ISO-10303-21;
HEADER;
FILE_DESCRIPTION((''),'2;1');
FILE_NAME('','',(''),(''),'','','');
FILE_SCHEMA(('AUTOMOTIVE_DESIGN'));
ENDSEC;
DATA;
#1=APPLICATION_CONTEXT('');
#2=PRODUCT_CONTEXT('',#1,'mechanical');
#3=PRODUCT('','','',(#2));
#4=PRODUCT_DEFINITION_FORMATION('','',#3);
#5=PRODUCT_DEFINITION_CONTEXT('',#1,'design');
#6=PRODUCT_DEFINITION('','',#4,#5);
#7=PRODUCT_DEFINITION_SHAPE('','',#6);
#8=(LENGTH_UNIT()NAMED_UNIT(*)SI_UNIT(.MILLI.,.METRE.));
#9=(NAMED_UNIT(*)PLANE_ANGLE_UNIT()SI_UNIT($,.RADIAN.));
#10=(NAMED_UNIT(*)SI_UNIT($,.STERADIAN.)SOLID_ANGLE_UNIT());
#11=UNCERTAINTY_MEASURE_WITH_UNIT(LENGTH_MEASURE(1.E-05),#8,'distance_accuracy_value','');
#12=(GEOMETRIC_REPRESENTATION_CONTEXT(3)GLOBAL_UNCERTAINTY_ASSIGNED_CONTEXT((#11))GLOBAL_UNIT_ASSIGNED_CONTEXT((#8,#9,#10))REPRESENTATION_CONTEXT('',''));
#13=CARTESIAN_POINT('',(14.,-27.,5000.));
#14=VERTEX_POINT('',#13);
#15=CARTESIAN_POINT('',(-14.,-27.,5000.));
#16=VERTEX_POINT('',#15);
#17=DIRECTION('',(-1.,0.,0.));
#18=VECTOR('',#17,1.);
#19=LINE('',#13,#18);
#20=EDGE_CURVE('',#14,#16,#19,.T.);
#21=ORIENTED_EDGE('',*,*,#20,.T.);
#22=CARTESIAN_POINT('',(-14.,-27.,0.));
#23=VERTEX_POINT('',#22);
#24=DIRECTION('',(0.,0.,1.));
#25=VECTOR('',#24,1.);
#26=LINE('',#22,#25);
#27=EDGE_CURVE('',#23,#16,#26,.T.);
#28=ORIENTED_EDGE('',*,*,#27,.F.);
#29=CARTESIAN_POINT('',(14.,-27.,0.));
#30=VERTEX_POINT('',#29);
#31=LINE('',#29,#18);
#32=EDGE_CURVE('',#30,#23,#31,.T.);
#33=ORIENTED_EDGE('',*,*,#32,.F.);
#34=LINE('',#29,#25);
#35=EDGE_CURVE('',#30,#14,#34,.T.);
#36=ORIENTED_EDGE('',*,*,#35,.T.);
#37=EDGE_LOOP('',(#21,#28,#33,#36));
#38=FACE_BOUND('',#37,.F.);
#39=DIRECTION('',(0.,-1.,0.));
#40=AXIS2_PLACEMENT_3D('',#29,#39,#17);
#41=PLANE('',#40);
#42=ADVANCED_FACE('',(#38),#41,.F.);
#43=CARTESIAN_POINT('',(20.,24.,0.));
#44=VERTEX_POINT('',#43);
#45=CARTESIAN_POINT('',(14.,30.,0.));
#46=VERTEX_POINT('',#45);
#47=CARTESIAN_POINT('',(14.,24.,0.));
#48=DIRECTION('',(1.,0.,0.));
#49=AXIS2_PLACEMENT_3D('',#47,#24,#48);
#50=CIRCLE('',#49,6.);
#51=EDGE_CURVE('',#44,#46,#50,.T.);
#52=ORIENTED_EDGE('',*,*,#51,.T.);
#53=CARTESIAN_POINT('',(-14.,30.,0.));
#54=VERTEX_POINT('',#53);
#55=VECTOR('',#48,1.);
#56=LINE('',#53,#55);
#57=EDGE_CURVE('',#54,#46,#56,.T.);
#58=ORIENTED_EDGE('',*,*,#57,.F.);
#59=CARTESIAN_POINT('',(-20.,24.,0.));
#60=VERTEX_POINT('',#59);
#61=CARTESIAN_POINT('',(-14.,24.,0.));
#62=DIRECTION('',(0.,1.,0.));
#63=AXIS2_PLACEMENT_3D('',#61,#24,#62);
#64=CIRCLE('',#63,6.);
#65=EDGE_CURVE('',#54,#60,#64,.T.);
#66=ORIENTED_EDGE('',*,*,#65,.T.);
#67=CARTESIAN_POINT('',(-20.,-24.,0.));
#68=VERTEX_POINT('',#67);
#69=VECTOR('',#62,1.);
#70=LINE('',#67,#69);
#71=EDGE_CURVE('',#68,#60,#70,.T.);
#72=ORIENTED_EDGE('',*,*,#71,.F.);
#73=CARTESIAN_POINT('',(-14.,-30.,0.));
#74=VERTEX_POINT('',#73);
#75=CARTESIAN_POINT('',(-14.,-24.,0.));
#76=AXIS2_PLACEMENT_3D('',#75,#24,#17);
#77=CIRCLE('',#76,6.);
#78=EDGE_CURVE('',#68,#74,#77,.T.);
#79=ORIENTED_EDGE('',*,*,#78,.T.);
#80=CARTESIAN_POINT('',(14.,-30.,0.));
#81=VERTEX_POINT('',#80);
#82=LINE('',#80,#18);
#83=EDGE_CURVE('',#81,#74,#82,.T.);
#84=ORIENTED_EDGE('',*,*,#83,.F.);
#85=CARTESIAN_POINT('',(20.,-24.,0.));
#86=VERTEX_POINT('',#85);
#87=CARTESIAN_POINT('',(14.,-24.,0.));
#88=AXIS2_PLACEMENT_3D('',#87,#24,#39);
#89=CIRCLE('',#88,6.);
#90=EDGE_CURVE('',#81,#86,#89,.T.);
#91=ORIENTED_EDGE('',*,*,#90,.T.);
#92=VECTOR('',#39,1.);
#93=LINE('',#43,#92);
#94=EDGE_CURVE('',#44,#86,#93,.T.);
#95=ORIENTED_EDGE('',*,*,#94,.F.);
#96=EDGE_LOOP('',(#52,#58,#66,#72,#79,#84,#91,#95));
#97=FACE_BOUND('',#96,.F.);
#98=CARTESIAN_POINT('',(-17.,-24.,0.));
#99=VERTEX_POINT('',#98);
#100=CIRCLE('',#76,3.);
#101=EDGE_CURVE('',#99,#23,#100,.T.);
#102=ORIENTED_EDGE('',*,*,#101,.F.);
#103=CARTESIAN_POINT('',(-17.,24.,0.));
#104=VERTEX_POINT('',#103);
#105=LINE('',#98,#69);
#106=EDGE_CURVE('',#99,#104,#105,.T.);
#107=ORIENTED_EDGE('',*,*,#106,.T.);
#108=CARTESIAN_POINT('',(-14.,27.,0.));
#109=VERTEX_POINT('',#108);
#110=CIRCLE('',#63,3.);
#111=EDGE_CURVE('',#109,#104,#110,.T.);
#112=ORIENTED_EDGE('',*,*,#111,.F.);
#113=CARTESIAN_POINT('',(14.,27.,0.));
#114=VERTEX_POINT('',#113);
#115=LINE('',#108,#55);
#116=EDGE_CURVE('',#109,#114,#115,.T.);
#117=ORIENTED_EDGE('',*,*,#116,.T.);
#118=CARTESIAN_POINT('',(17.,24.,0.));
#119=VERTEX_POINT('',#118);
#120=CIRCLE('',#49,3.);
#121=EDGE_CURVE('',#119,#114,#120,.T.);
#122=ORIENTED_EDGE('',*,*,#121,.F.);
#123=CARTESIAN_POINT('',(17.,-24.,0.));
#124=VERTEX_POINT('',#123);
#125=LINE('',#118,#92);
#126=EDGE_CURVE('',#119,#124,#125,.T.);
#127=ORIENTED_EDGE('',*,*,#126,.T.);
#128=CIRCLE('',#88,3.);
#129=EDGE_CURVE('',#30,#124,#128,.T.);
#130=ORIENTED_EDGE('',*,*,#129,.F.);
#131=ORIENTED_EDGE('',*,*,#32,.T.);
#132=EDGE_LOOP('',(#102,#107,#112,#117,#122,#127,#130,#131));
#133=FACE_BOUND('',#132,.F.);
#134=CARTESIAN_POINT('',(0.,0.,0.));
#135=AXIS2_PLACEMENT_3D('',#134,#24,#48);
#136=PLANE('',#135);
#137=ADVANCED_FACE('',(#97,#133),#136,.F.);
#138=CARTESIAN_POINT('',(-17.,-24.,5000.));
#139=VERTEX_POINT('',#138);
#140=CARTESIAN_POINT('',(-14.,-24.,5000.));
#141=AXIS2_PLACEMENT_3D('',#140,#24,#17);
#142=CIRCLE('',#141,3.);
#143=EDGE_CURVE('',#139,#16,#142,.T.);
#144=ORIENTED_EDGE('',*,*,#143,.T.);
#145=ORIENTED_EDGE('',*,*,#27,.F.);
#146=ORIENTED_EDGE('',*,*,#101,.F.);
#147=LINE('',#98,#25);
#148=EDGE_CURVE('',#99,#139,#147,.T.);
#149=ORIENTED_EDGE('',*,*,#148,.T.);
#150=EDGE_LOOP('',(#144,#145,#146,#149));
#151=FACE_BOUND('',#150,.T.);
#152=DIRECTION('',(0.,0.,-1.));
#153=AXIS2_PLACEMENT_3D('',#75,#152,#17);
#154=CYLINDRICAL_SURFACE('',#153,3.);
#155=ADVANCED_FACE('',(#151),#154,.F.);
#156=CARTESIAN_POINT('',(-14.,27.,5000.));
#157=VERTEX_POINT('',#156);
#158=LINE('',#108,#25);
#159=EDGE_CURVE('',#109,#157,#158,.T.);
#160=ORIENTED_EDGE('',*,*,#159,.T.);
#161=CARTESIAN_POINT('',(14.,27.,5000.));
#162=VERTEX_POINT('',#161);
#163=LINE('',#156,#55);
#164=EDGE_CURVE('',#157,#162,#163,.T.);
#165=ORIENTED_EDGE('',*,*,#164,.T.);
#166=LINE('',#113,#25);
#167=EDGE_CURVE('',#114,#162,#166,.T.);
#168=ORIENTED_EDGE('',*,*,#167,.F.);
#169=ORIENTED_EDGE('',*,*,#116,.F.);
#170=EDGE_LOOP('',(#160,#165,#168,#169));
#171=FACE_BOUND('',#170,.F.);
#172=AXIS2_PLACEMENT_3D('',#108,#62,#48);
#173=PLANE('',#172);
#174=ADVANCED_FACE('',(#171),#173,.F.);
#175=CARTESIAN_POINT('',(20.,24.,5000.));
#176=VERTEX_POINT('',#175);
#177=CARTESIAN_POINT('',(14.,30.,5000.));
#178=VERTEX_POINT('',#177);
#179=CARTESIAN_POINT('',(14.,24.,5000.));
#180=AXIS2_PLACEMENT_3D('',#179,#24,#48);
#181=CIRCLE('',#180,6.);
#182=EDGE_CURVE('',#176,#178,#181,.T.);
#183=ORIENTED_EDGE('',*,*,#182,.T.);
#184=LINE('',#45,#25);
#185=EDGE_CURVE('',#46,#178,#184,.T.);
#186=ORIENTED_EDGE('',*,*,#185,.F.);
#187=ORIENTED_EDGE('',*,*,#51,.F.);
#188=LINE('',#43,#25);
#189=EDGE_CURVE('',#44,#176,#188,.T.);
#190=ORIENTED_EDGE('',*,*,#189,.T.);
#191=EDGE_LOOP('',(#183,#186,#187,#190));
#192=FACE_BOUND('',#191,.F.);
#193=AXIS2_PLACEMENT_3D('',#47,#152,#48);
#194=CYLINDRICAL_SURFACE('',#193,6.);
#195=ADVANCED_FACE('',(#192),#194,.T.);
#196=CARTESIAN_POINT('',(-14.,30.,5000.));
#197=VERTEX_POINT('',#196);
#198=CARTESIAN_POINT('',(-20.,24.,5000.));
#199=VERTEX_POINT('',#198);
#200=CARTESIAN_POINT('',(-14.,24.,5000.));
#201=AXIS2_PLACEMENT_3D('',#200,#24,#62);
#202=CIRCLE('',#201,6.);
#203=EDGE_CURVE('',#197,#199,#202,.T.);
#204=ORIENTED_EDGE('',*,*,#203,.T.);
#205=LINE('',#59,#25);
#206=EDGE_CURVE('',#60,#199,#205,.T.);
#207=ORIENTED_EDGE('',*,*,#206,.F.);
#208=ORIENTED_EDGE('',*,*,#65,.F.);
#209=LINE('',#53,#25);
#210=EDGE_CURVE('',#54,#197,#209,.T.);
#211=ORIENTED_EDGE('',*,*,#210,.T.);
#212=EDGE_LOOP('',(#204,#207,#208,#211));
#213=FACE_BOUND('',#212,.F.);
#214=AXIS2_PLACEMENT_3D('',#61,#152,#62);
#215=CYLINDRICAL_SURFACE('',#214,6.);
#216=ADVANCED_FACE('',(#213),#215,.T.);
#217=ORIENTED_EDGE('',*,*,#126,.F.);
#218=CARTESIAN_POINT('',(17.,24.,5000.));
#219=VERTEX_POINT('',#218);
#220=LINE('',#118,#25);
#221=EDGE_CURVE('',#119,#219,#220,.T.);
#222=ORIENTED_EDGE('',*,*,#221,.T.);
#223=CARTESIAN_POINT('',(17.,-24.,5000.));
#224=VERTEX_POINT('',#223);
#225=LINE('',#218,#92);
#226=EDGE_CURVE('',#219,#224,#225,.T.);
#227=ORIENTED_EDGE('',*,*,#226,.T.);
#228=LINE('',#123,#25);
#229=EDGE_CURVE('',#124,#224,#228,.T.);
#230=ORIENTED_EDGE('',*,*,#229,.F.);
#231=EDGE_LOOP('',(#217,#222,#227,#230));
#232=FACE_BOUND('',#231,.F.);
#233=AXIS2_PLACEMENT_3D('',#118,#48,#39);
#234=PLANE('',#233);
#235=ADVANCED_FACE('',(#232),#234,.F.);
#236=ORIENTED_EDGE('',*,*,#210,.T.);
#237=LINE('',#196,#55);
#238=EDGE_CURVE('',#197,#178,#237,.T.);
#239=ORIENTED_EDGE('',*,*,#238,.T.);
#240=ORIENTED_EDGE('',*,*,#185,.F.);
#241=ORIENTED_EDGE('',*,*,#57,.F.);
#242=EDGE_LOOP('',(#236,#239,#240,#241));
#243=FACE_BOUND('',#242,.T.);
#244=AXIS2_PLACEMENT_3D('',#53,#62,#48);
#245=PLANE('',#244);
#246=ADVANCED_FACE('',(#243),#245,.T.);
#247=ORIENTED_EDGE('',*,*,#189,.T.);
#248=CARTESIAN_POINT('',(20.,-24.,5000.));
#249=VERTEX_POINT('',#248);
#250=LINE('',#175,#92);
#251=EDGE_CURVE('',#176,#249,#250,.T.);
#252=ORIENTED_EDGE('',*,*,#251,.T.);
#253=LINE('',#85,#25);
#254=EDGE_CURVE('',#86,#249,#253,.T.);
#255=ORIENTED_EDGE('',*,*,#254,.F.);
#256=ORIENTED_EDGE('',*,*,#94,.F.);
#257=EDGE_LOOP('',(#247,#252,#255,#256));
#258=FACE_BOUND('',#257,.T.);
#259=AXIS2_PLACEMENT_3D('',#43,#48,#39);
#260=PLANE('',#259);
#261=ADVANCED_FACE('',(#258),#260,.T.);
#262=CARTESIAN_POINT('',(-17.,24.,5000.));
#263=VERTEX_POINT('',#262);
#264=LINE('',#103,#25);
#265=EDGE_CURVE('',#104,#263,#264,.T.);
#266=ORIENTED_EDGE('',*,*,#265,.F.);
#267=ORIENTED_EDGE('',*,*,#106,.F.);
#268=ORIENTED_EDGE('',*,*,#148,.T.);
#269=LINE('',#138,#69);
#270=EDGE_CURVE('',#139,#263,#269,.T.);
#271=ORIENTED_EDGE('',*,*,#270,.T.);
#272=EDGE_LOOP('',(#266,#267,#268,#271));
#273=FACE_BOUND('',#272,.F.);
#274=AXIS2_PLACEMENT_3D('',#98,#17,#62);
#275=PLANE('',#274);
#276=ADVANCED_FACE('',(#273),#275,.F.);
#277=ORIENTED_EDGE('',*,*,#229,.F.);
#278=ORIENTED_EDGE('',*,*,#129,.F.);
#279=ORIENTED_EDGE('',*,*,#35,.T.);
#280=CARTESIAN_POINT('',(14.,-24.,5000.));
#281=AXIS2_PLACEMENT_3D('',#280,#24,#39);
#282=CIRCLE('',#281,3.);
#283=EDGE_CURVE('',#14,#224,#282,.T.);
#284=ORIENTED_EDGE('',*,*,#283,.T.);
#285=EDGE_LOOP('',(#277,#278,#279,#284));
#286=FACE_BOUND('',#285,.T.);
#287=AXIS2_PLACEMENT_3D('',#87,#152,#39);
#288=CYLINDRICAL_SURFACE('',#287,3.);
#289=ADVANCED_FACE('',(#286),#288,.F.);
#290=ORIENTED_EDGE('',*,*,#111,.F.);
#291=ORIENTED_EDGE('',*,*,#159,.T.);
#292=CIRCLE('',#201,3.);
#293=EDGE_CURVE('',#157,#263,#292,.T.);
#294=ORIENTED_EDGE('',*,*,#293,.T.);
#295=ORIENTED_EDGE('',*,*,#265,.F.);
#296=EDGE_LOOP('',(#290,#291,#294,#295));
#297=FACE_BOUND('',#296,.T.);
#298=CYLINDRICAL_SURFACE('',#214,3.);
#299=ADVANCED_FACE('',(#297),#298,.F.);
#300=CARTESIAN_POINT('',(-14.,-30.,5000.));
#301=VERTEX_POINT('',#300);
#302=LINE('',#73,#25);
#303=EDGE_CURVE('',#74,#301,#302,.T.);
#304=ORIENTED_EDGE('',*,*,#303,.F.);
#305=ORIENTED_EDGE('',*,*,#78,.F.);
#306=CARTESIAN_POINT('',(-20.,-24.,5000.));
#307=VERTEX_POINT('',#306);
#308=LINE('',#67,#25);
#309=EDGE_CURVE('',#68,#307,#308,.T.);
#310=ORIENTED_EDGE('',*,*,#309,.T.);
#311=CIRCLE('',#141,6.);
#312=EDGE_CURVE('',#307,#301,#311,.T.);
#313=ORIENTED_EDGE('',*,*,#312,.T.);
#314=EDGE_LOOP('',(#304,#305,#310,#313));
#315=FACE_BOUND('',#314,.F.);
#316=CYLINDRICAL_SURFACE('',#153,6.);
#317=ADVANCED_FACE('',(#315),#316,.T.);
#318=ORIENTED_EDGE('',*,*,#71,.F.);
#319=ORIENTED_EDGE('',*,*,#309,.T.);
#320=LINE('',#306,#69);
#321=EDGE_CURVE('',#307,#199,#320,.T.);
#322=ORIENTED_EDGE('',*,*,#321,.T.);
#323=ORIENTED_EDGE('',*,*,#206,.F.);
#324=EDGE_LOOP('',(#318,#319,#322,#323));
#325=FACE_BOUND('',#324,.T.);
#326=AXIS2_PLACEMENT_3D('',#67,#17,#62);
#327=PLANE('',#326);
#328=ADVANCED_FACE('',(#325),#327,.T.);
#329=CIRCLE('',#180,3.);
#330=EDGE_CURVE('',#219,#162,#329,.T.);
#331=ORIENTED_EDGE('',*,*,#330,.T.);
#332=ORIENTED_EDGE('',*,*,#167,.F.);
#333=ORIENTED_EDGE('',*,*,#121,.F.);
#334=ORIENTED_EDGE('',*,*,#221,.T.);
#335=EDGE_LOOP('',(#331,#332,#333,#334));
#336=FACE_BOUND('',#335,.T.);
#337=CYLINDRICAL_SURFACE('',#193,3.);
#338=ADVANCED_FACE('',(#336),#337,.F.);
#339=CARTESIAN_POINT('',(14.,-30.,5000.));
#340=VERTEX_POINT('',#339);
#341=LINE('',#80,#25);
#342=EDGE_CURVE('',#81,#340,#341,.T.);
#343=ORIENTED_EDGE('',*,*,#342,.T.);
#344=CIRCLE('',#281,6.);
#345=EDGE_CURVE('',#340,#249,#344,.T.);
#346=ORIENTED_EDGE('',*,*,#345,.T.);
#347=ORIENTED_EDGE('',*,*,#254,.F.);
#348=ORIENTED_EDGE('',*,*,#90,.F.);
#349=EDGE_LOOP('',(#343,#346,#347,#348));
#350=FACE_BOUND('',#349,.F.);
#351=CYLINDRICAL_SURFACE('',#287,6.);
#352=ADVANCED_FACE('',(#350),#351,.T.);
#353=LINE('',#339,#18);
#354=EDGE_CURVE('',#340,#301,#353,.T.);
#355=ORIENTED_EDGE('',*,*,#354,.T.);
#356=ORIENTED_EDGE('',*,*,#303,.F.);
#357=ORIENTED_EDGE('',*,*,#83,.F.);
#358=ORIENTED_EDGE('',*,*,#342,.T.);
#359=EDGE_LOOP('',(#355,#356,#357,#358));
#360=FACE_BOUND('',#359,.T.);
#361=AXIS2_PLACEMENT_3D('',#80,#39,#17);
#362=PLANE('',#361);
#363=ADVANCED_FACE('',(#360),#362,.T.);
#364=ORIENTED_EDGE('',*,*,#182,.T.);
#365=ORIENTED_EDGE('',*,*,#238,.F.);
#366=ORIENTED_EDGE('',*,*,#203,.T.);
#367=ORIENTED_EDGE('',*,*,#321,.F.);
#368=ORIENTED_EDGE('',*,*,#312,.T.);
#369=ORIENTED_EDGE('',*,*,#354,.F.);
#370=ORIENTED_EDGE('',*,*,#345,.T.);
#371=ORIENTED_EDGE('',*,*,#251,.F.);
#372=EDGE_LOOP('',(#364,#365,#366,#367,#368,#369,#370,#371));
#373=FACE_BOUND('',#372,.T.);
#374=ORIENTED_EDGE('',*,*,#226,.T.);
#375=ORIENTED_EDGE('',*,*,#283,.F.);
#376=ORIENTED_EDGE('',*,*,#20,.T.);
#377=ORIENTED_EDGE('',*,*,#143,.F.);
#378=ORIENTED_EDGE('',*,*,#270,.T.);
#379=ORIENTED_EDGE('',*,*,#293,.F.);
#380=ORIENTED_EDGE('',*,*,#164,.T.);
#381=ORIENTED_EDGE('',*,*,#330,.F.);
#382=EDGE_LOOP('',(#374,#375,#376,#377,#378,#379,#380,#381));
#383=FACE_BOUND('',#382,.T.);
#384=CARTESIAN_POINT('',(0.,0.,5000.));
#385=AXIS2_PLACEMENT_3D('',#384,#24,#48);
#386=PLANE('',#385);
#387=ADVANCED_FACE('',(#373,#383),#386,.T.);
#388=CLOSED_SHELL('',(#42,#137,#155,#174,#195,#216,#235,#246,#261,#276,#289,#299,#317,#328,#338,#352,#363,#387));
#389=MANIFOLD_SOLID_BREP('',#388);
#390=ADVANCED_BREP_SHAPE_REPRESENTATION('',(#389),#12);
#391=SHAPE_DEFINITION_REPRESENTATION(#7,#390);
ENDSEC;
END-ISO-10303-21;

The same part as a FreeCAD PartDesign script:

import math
import FreeCAD as App
import Part
import Sketcher
from FreeCAD import Vector
Q = App.Units.Quantity

doc = App.newDocument("Part")
body = doc.addObject("PartDesign::Body", "Body")

# Sketch on XY plane
sketch1 = body.newObject("Sketcher::SketchObject", "Sketch")
sketch1.AttachmentSupport = (doc.getObject("XY_Plane"), [""])
sketch1.MapMode = "FlatFace"
sketch1.addGeometry([
    Part.LineSegment(Vector(-20, 24, 0), Vector(-20, -24, 0)),  # 0
    Part.ArcOfCircle(Part.Circle(Vector(-14, -24, 0), Vector(0, 0, 1), 6), math.radians(180), math.radians(270)),  # 1
    Part.LineSegment(Vector(-14, -30, 0), Vector(14, -30, 0)),  # 2
    Part.ArcOfCircle(Part.Circle(Vector(14, -24, 0), Vector(0, 0, 1), 6), math.radians(-90), math.radians(0)),  # 3
    Part.LineSegment(Vector(20, -24, 0), Vector(20, 24, 0)),  # 4
    Part.ArcOfCircle(Part.Circle(Vector(14, 24, 0), Vector(0, 0, 1), 6), math.radians(0), math.radians(90)),  # 5
    Part.LineSegment(Vector(14, 30, 0), Vector(-14, 30, 0)),  # 6
    Part.ArcOfCircle(Part.Circle(Vector(-14, 24, 0), Vector(0, 0, 1), 6), math.radians(90), math.radians(180)),  # 7
    Part.ArcOfCircle(Part.Circle(Vector(-14, 24, 0), Vector(0, 0, 1), 3), math.radians(90), math.radians(180)),  # 8
    Part.LineSegment(Vector(-14, 27, 0), Vector(14, 27, 0)),  # 9
    Part.ArcOfCircle(Part.Circle(Vector(14, 24, 0), Vector(0, 0, 1), 3), math.radians(0), math.radians(90)),  # 10
    Part.LineSegment(Vector(17, 24, 0), Vector(17, -24, 0)),  # 11
    Part.ArcOfCircle(Part.Circle(Vector(14, -24, 0), Vector(0, 0, 1), 3), math.radians(-90), math.radians(0)),  # 12
    Part.LineSegment(Vector(14, -27, 0), Vector(-14, -27, 0)),  # 13
    Part.ArcOfCircle(Part.Circle(Vector(-14, -24, 0), Vector(0, 0, 1), 3), math.radians(180), math.radians(270)),  # 14
    Part.LineSegment(Vector(-17, -24, 0), Vector(-17, 24, 0)),  # 15
], False)
sketch1.addConstraint([
    Sketcher.Constraint("Tangent", 0, 2, 1, 1),
    Sketcher.Constraint("Tangent", 1, 2, 2, 1),
    Sketcher.Constraint("Tangent", 2, 2, 3, 1),
    Sketcher.Constraint("Tangent", 3, 2, 4, 1),
    Sketcher.Constraint("Tangent", 4, 2, 5, 1),
    Sketcher.Constraint("Tangent", 5, 2, 6, 1),
    Sketcher.Constraint("Tangent", 6, 2, 7, 1),
    Sketcher.Constraint("Tangent", 7, 2, 0, 1),
    Sketcher.Constraint("Tangent", 8, 1, 9, 1),
    Sketcher.Constraint("Tangent", 9, 2, 10, 2),
    Sketcher.Constraint("Tangent", 10, 1, 11, 1),
    Sketcher.Constraint("Tangent", 11, 2, 12, 2),
    Sketcher.Constraint("Tangent", 12, 1, 13, 1),
    Sketcher.Constraint("Tangent", 13, 2, 14, 2),
    Sketcher.Constraint("Tangent", 14, 1, 15, 1),
    Sketcher.Constraint("Tangent", 15, 2, 8, 2),
    Sketcher.Constraint("Vertical", 0),
    Sketcher.Constraint("Horizontal", 2),
    Sketcher.Constraint("Vertical", 4),
    Sketcher.Constraint("Horizontal", 6),
    Sketcher.Constraint("Horizontal", 9),
    Sketcher.Constraint("Vertical", 11),
    Sketcher.Constraint("Horizontal", 13),
    Sketcher.Constraint("Vertical", 15),
    Sketcher.Constraint("Coincident", 8, 3, 7, 3),
    Sketcher.Constraint("Coincident", 10, 3, 5, 3),
    Sketcher.Constraint("Coincident", 12, 3, 3, 3),
    Sketcher.Constraint("Equal", 1, 3),
    Sketcher.Constraint("Equal", 3, 5),
    Sketcher.Constraint("Equal", 5, 7),
    Sketcher.Constraint("Equal", 12, 14),
    Sketcher.Constraint("Symmetric", 1, 3, 5, 3, -1, 1),
    Sketcher.Constraint("Radius", 1, Q("6 mm")),
    Sketcher.Constraint("Radius", 8, Q("3 mm")),
    Sketcher.Constraint("DistanceX", 0, 2, -1, 1, Q("20 mm")),
    Sketcher.Constraint("DistanceY", 1, 2, -1, 1, Q("30 mm")),
])
pad1 = body.newObject("PartDesign::Pad", "Pad")
pad1.Profile = sketch1
pad1.Length = 5000

doc.recompute()
